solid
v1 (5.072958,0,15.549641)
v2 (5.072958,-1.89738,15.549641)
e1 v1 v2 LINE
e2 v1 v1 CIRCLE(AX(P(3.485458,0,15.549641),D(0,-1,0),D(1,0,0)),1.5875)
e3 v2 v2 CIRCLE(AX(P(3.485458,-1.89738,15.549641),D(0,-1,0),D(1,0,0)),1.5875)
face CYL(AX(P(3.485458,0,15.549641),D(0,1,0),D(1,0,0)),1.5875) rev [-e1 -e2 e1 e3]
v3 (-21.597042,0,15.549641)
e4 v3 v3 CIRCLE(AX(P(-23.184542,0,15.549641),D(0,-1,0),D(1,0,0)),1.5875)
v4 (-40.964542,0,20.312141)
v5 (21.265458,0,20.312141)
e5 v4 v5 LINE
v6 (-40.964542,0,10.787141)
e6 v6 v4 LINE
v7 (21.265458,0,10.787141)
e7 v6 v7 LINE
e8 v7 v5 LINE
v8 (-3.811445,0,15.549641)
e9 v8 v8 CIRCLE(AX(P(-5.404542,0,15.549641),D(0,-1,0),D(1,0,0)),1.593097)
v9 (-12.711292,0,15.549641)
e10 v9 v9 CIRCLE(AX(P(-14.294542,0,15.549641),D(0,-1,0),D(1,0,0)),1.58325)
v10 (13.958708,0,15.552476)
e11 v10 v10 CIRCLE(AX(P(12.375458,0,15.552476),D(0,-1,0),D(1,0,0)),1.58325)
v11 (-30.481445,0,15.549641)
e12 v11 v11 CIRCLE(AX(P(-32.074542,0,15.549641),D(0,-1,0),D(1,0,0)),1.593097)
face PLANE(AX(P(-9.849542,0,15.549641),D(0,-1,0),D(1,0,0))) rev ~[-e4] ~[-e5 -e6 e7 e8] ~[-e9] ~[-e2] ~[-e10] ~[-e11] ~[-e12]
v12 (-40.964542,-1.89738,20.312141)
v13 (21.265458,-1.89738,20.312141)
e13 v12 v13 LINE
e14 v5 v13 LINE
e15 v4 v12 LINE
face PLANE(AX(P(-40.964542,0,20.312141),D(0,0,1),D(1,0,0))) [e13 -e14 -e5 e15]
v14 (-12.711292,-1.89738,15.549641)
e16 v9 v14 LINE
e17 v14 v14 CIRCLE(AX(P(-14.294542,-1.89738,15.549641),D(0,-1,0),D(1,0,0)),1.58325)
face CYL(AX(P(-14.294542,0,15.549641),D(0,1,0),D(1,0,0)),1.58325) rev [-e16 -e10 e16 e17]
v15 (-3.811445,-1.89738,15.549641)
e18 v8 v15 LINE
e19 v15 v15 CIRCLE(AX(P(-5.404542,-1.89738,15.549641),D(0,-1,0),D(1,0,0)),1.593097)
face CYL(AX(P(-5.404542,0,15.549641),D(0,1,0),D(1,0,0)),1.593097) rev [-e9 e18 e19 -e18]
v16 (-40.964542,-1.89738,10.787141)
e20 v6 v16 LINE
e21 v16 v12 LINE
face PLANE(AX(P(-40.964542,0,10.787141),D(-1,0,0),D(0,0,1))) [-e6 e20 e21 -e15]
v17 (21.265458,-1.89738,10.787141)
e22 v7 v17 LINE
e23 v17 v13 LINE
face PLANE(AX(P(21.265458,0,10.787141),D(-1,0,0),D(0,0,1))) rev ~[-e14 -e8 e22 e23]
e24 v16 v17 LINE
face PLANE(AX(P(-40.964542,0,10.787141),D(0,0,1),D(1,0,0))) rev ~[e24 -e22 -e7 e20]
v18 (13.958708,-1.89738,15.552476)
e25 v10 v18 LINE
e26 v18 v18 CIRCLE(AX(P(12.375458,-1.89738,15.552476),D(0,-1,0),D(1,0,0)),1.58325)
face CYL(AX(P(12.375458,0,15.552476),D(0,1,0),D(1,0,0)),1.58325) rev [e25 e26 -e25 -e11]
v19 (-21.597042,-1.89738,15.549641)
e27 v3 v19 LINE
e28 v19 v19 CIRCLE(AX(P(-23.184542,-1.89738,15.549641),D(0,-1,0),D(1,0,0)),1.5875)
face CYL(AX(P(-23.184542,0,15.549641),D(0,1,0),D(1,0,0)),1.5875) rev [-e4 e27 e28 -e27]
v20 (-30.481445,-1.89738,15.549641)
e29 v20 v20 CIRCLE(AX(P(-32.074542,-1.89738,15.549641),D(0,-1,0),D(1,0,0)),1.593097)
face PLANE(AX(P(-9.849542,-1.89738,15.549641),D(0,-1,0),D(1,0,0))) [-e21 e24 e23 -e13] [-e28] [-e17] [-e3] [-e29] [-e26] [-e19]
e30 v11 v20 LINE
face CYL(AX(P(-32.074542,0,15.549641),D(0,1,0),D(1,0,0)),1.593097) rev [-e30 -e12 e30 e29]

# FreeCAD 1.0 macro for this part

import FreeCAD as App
import Part
import Sketcher
from FreeCAD import Vector
Q = App.Units.Quantity


def add_polygon(sketch, points):
    """Adds a closed chain of lines whose ends are joined by coincident constraints."""
    first, n = sketch.GeometryCount, len(points)
    for a, b in zip(points, points[1:] + points[:1]):
        sketch.addGeometry(Part.LineSegment(App.Vector(*a, 0), App.Vector(*b, 0)), False)
    for i in range(n):
        sketch.addConstraint(Sketcher.Constraint("Coincident", first + i, 2, first + (i + 1) % n, 1))

doc = App.newDocument("Part")
body = doc.addObject("PartDesign::Body", "Body")

sketch1 = doc.addObject("Sketcher::SketchObject", "Sketch")
body.addObject(sketch1)
sketch1.AttachmentSupport = (doc.XZ_Plane, [""])
sketch1.MapMode = "FlatFace"
add_polygon(sketch1, [(-41, 20.3), (-41, 10.8), (21.3, 10.8), (21.3, 20.3)])
sketch1.addGeometry(Part.Circle(Vector(-32.1, 15.5, 0), Vector(0, 0, 1), 1.6), False)
sketch1.addGeometry(Part.Circle(Vector(-23.2, 15.5, 0), Vector(0, 0, 1), 1.6), False)
sketch1.addGeometry(Part.Circle(Vector(-14.3, 15.5, 0), Vector(0, 0, 1), 1.6), False)
sketch1.addGeometry(Part.Circle(Vector(-5.4, 15.5, 0), Vector(0, 0, 1), 1.6), False)
sketch1.addGeometry(Part.Circle(Vector(3.5, 15.5, 0), Vector(0, 0, 1), 1.6), False)
sketch1.addGeometry(Part.Circle(Vector(12.4, 15.6, 0), Vector(0, 0, 1), 1.6), False)
sketch1.addConstraint([
    Sketcher.Constraint("Vertical", 0),
    Sketcher.Constraint("Horizontal", 1),
    Sketcher.Constraint("Vertical", 2),
    Sketcher.Constraint("Horizontal", 3),
    Sketcher.Constraint("Equal", 4, 7),
    Sketcher.Constraint("Equal", 5, 8),
    Sketcher.Constraint("Equal", 6, 9),
    Sketcher.Constraint("Horizontal", 4, 3, 5, 3),
    Sketcher.Constraint("Horizontal", 5, 3, 6, 3),
    Sketcher.Constraint("Horizontal", 6, 3, 7, 3),
    Sketcher.Constraint("Horizontal", 7, 3, 8, 3),
    Sketcher.Constraint("Diameter", 5, Q("0.125 in")),
    Sketcher.Constraint("DistanceX", 1, 1, 1, 2, Q("2.45 in")),
    Sketcher.Constraint("DistanceX", 4, 3, 6, 3, Q("0.7 in")),
    Sketcher.Constraint("DistanceX", 5, 3, 7, 3, Q("0.7 in")),
    Sketcher.Constraint("DistanceX", 6, 3, 8, 3, Q("0.7 in")),
    Sketcher.Constraint("DistanceX", 7, 3, 9, 3, Q("0.7 in")),
    Sketcher.Constraint("DistanceX", 0, 2, 5, 3, Q("0.7 in")),
    Sketcher.Constraint("DistanceX", 8, 3, 1, 2, Q("0.7 in")),
    Sketcher.Constraint("Diameter", 6, Q("3.1665 mm")),
    Sketcher.Constraint("DistanceY", 0, 2, 0, 1, Q("0.375 in")),
    Sketcher.Constraint("DistanceY", 0, 2, 4, 3, Q("0.1875 in")),
    Sketcher.Constraint("Diameter", 4, Q("3.186194 mm")),
    Sketcher.Constraint("DistanceY", -1, 1, 4, 3, Q("15.549641 mm")),
    Sketcher.Constraint("DistanceX", -1, 1, 8, 3, Q("3.485458 mm")),
    Sketcher.Constraint("DistanceY", -1, 1, 9, 3, Q("15.552476 mm")),
])
pad1 = doc.addObject("PartDesign::Pad", "Pad")
body.addObject(pad1)
pad1.Profile = sketch1
pad1.Length = Q("0.0747 in")

doc.recompute()
